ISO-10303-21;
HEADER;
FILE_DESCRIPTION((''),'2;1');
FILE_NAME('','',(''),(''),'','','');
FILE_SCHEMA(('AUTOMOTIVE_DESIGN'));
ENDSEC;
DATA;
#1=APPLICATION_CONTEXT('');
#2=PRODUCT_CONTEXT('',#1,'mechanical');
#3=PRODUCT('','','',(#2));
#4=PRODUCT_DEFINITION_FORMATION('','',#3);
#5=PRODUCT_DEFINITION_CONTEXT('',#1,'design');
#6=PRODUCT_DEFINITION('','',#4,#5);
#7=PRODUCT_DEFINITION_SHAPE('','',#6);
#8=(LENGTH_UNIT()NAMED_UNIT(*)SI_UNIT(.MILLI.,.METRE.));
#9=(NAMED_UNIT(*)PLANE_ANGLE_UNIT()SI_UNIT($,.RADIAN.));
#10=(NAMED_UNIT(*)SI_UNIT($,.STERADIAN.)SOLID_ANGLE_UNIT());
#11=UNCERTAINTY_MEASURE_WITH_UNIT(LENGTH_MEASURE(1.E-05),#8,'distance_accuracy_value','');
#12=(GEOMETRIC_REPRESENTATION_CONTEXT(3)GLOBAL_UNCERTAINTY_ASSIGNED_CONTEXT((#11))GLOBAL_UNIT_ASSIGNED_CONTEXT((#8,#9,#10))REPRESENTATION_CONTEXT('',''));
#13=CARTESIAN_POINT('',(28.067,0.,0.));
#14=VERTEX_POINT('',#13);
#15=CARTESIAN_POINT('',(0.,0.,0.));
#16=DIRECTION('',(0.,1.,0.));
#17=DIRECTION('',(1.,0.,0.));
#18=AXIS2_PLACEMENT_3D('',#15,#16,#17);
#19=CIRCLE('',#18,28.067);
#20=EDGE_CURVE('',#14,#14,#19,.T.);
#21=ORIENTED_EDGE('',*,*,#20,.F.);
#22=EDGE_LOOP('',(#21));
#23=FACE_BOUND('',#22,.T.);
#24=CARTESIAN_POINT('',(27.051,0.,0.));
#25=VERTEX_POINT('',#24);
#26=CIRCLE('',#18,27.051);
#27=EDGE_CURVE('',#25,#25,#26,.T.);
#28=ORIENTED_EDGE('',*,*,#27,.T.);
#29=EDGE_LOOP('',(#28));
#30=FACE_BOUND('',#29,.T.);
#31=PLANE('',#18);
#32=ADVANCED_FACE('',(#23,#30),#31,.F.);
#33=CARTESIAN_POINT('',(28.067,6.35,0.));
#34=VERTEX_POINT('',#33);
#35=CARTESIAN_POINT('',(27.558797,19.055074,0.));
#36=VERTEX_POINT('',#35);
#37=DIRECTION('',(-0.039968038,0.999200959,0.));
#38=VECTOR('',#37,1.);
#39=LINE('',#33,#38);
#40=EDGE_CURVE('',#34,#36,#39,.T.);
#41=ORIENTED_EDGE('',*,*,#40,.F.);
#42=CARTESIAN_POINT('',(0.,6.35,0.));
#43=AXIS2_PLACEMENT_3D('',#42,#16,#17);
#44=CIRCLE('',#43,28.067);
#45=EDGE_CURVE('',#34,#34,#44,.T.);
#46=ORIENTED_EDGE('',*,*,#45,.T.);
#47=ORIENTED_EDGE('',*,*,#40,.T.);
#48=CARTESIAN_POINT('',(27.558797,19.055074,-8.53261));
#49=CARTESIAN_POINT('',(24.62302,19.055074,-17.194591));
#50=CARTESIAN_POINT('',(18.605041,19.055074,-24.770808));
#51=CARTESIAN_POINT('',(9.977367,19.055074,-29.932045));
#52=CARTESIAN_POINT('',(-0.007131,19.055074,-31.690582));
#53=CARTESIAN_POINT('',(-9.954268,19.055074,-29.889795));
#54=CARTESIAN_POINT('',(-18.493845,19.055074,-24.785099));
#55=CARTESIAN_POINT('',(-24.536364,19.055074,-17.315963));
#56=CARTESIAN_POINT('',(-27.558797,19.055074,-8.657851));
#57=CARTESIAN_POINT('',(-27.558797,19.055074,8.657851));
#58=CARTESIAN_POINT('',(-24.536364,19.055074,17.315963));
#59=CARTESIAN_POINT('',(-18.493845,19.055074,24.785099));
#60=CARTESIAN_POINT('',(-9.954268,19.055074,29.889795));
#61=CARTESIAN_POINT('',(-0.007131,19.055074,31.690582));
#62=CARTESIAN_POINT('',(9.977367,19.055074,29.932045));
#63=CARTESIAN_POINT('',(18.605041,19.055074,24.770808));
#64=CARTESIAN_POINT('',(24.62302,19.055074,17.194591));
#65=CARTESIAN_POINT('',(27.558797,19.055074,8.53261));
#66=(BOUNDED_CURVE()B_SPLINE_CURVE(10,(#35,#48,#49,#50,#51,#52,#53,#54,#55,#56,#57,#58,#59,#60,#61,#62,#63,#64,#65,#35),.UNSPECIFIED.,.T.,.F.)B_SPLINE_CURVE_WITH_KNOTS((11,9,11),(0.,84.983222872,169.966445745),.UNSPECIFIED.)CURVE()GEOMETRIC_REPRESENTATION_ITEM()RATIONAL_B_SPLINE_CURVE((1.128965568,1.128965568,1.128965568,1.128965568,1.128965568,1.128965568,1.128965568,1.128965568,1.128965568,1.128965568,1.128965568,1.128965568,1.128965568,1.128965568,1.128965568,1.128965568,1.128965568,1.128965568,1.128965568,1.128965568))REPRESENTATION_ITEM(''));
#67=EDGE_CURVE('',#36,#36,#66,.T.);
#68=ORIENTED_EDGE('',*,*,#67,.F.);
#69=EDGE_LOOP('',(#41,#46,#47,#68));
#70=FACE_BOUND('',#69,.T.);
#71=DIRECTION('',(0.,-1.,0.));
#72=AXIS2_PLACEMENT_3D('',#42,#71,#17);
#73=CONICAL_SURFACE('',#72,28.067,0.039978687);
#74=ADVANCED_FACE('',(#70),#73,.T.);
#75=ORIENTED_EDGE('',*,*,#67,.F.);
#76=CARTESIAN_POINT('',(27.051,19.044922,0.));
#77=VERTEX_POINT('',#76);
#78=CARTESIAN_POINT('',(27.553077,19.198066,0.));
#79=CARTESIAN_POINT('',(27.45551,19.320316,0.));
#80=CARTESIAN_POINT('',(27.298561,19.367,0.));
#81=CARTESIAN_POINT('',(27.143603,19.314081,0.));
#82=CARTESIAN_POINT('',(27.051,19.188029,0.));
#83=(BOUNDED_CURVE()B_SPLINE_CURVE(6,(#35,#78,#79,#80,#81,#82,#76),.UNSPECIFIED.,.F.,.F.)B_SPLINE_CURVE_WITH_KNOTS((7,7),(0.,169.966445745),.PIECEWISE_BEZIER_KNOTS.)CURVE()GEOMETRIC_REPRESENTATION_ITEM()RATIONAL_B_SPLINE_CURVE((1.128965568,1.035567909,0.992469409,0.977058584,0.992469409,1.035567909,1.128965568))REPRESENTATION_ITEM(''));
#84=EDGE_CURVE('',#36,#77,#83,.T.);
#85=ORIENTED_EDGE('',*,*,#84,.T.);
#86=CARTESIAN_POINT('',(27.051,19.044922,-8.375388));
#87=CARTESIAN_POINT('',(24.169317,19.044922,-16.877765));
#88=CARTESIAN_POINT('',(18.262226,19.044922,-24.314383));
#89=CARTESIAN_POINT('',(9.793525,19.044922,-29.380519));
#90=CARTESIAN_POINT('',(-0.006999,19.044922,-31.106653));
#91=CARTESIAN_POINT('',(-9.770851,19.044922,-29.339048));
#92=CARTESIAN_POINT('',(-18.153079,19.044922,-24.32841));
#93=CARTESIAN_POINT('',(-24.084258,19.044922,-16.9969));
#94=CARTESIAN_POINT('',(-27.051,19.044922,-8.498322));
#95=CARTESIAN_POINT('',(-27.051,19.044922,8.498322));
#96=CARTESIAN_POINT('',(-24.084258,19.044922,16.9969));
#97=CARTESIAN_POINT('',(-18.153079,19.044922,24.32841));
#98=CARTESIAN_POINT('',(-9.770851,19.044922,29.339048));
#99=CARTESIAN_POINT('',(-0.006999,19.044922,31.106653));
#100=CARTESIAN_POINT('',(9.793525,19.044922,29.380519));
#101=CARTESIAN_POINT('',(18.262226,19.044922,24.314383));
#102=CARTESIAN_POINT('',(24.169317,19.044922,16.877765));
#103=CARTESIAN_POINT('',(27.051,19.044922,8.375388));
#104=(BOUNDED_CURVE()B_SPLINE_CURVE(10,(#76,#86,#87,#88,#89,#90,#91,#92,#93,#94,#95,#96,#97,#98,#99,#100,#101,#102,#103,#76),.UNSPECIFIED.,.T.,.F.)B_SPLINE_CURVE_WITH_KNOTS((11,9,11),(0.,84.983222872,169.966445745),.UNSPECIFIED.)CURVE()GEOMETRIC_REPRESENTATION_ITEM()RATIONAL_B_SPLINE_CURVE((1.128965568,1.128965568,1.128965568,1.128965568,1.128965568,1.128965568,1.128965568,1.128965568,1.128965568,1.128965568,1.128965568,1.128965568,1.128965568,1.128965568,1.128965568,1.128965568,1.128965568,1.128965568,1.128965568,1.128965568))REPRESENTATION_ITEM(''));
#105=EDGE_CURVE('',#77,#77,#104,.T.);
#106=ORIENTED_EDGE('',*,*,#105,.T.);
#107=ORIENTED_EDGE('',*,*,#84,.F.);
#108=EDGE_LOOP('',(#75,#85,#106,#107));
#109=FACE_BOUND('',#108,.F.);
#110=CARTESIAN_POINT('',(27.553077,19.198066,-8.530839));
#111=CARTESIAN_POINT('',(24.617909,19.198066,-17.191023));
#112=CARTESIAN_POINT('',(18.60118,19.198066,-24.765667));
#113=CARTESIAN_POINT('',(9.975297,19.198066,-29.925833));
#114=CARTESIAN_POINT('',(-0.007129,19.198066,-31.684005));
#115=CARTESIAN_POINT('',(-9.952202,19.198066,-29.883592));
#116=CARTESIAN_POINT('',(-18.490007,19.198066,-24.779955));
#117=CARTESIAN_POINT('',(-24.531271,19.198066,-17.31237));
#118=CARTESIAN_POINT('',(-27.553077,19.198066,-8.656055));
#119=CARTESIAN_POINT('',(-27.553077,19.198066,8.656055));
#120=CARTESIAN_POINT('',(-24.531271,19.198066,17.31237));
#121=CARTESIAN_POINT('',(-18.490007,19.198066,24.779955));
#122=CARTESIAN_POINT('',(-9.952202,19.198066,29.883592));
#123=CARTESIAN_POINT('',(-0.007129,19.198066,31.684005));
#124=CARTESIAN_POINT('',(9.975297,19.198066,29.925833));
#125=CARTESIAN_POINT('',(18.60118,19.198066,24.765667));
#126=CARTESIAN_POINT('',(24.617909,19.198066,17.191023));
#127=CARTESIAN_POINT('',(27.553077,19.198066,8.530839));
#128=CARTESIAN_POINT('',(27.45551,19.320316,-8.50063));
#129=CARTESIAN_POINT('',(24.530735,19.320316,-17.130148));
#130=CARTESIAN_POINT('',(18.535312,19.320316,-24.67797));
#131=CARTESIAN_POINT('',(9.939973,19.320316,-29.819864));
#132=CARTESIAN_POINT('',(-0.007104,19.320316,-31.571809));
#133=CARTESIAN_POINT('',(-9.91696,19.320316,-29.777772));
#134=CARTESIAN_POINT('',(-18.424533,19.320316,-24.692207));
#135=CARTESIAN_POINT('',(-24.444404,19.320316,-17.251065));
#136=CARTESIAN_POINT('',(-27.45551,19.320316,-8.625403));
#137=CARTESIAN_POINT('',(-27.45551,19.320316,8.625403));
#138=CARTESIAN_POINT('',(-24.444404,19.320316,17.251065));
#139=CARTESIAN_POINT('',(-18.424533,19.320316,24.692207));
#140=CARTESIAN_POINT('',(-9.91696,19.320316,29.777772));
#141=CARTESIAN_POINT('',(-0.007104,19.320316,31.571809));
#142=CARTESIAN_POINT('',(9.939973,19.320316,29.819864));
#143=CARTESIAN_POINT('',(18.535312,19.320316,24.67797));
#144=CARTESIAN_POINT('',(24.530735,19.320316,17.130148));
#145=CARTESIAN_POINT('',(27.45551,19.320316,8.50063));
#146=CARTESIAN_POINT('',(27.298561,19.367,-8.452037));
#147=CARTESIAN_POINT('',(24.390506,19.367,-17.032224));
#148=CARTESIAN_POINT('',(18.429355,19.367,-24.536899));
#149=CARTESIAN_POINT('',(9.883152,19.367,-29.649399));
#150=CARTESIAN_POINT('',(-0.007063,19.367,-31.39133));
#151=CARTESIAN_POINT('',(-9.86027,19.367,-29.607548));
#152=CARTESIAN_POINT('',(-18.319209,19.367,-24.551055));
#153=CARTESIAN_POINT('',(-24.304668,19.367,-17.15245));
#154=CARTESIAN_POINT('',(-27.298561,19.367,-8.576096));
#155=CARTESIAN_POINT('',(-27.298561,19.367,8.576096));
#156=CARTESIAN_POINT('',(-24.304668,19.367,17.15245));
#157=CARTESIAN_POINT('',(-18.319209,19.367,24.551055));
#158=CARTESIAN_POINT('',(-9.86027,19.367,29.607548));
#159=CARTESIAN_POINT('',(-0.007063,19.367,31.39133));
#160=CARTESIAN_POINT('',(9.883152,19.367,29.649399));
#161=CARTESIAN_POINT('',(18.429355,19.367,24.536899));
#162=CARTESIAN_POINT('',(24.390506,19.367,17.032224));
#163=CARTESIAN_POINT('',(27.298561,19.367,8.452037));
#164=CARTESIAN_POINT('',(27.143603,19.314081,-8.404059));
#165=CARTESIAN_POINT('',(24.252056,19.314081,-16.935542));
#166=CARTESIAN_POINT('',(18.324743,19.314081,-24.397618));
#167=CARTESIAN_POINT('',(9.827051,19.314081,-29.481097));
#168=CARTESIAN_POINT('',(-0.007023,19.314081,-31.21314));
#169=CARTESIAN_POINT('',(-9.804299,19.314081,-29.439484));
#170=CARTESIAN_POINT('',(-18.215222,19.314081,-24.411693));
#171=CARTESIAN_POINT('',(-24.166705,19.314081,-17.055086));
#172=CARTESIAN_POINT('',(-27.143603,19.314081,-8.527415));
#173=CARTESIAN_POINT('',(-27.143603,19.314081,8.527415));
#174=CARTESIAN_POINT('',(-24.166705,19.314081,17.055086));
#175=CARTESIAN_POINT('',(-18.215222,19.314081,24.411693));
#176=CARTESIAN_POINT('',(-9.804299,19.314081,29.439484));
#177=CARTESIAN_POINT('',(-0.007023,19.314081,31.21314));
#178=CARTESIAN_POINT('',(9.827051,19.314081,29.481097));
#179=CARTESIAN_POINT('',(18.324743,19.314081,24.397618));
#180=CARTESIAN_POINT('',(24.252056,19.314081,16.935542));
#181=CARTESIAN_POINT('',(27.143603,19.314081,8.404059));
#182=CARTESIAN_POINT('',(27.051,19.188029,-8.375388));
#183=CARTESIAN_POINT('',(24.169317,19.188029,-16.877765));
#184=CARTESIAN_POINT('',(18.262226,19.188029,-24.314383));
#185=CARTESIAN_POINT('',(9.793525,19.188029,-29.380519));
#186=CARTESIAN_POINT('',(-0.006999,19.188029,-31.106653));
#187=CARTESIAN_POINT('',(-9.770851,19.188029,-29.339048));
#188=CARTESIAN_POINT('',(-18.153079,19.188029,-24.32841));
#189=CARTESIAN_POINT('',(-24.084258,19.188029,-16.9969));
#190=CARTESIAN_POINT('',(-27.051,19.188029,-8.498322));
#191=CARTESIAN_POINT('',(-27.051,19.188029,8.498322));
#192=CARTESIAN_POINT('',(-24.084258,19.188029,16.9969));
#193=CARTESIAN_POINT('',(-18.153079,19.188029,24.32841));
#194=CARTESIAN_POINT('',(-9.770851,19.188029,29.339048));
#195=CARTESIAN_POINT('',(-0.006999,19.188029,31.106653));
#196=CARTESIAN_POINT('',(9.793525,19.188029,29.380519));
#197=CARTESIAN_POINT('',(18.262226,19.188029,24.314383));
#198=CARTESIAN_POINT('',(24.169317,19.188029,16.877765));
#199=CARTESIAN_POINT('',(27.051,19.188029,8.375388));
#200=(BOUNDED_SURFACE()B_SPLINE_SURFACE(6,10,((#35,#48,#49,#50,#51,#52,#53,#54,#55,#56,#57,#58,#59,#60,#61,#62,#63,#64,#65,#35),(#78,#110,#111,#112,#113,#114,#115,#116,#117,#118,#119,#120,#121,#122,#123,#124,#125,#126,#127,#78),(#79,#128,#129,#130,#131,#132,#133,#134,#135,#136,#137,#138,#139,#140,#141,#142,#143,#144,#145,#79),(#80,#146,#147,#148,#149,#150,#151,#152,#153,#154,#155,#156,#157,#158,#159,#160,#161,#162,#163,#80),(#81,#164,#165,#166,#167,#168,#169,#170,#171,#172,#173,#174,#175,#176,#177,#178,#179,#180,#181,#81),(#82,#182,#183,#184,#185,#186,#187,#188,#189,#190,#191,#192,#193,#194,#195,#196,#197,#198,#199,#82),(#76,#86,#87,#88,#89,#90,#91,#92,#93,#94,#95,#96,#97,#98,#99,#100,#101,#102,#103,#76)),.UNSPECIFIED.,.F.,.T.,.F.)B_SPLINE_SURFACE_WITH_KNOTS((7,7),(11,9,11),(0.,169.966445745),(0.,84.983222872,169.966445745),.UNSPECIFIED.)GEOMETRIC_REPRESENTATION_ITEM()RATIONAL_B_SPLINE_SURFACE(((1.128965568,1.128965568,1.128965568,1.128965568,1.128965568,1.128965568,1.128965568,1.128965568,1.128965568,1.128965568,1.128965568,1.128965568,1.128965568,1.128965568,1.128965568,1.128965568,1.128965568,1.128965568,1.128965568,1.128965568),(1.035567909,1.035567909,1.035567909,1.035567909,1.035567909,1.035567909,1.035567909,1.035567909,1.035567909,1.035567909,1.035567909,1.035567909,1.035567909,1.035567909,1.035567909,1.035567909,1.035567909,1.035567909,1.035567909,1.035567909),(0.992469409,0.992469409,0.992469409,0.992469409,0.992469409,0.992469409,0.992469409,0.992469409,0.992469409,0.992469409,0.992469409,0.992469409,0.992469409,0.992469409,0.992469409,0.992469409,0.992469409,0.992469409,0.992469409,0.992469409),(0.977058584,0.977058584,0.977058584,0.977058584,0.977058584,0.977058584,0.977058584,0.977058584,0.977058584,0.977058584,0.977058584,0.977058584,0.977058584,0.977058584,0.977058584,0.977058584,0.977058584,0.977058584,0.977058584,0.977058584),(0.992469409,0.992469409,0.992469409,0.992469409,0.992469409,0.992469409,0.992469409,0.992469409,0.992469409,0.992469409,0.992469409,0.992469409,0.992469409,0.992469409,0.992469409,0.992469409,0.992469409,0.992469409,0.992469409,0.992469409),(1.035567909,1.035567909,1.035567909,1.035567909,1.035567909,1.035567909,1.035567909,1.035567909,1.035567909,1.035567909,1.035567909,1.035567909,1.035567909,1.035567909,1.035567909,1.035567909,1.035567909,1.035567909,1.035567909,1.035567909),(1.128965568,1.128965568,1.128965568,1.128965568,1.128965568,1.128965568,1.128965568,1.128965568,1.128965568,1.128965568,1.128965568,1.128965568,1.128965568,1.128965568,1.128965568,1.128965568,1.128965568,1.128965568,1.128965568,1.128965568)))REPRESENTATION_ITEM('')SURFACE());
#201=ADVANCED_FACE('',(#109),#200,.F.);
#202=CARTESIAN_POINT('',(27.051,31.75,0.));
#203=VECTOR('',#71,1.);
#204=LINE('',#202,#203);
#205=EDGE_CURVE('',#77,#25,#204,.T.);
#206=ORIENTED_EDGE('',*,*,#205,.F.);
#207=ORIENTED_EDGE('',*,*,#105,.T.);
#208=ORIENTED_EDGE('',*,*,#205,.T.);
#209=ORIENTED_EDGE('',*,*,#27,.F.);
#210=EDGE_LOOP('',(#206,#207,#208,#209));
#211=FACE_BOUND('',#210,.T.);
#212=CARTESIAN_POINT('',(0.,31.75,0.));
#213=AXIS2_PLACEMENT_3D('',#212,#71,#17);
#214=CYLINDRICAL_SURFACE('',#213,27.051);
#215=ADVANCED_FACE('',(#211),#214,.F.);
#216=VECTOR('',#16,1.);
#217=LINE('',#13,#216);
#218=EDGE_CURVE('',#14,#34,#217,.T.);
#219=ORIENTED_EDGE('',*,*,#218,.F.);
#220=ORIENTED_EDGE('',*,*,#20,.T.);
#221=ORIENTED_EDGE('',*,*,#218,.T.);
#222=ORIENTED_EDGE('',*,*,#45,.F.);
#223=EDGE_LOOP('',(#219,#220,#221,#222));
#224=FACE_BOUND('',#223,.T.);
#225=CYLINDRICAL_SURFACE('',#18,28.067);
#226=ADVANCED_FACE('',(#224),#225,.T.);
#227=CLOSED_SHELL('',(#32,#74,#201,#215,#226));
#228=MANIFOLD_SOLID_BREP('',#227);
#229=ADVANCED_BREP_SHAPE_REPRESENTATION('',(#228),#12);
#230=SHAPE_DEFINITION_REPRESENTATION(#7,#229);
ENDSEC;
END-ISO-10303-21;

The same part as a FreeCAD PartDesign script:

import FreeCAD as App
import Part
import Sketcher

V = App.Vector
Q = App.Units.Quantity


def edges_at(feature, points):
    """Names of the edges that pass closest to the given points."""
    edges = feature.Shape.Edges
    near = lambda p: min(range(len(edges)), key=lambda i: edges[i].distToShape(Part.Vertex(*p))[0])
    return sorted({f"Edge{near(p) + 1}" for p in points})


def add_polygon(sketch, points):
    """Adds a closed chain of lines whose ends are joined by coincident constraints."""
    first, n = sketch.GeometryCount, len(points)
    for a, b in zip(points, points[1:] + points[:1]):
        sketch.addGeometry(Part.LineSegment(App.Vector(*a, 0), App.Vector(*b, 0)), False)
    for i in range(n):
        sketch.addConstraint(Sketcher.Constraint("Coincident", first + i, 2, first + (i + 1) % n, 1))

doc = App.newDocument("Part")
body = doc.addObject("PartDesign::Body", "Body")

# Sketch on XY plane
sketch1 = body.newObject("Sketcher::SketchObject", "Sketch")
sketch1.AttachmentSupport = (doc.getObject("XY_Plane"), [""])
sketch1.MapMode = "FlatFace"
add_polygon(sketch1, [(27.1, 0), (28.1, 0), (28.1, 6.3), (27.1, 31.8)])  # lines 0-3
sketch1.addConstraint([
    Sketcher.Constraint("Horizontal", 0),
    Sketcher.Constraint("Vertical", 1),
    Sketcher.Constraint("Vertical", 3),
    Sketcher.Constraint("PointOnObject", 0, 2, -1),
    Sketcher.Constraint("DistanceY", 1, 2, 2, 2, Q("1 in")),
    Sketcher.Constraint("DistanceX", 0, 1, 0, 2, Q("0.04 in")),
    Sketcher.Constraint("DistanceY", 1, 1, 1, 2, Q("0.25 in")),
    Sketcher.Constraint("DistanceX", -1, 1, 0, 2, Q("1.105 in")),
])
revolution = body.newObject("PartDesign::Revolution", "Revolution")
revolution.Profile = sketch1
revolution.ReferenceAxis = (sketch1, ["V_Axis"])
revolution.Angle = 360
doc.recompute()

fillet = body.newObject("PartDesign::Fillet", "Fillet")
fillet.Base = (revolution, edges_at(revolution, [(-27.051, 31.75, 0)]))
fillet.Radius = Q("0.01 in")

doc.recompute()
